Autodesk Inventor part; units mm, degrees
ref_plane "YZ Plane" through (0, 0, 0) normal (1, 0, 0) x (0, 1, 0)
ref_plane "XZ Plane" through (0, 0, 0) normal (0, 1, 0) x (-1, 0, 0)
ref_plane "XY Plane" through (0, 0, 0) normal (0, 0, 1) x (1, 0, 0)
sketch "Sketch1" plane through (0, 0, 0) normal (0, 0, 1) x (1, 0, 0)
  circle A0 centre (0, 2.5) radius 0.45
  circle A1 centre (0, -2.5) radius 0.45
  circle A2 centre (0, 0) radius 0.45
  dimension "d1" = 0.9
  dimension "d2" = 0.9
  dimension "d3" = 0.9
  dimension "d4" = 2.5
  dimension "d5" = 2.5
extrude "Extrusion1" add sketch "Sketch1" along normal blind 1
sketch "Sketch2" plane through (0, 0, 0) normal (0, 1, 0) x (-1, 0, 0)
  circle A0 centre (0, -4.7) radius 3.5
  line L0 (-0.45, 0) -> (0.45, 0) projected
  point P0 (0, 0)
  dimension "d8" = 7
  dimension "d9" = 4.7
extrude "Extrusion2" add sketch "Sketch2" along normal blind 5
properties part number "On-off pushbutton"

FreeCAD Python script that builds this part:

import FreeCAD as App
import Part
import Sketcher
from FreeCAD import Vector
Q = App.Units.Quantity

doc = App.newDocument("Part")
params = doc.addObject("Spreadsheet::Sheet", "Params")
for row, (alias, value) in enumerate([
    ("sketch1_diameter", "0.9 mm"),
    ("pad1_length", "1 mm"),
    ("sketch2_diameter", "7 mm"),
    ("pad2_length", "5 mm"),
], start=1):
    params.set(f"A{row}", alias)
    params.set(f"B{row}", "=" + value)
    params.setAlias(f"B{row}", alias)

body = doc.addObject("PartDesign::Body", "Body")
body.AllowCompound = True

sketch1 = doc.addObject("Sketcher::SketchObject", "Sketch")
body.addObject(sketch1)
sketch1.AttachmentSupport = (doc.XY_Plane, [""])
sketch1.MapMode = "FlatFace"
sketch1.addGeometry(Part.Circle(Vector(0, 2.5, 0), Vector(0, 0, 1), 0.45), False)
sketch1.addGeometry(Part.Circle(Vector(0, -2.5, 0), Vector(0, 0, 1), 0.45), False)
sketch1.addGeometry(Part.Circle(Vector(0, 0, 0), Vector(0, 0, 1), 0.45), False)
sketch1.addConstraint(Sketcher.Constraint("Coincident", 2, 3, -1, 1))
sketch1.addConstraint(Sketcher.Constraint("Equal", 0, 1))
sketch1.addConstraint(Sketcher.Constraint("Equal", 1, 2))
sketch1.addConstraint(Sketcher.Constraint("Symmetric", 0, 3, 1, 3, -1, 1))
sketch1.addConstraint(Sketcher.Constraint("PointOnObject", 0, 3, -2))
sketch1.addConstraint(Sketcher.Constraint("Diameter", 0, Q("0.9 mm")))
sketch1.addConstraint(Sketcher.Constraint("DistanceY", -1, 1, 0, 3, Q("2.5 mm")))
sketch1.setExpression("Constraints[5]", "Params.sketch1_diameter")
pad1 = doc.addObject("PartDesign::Pad", "Pad")
body.addObject(pad1)
pad1.Profile = sketch1
pad1.setExpression("Length", "Params.pad1_length")

sketch2 = doc.addObject("Sketcher::SketchObject", "Sketch001")
body.addObject(sketch2)
sketch2.AttachmentSupport = (doc.XZ_Plane, [""])
sketch2.MapMode = "FlatFace"
sketch2.addGeometry(Part.Circle(Vector(0, -4.7, 0), Vector(0, 0, 1), 3.5), False)
sketch2.addConstraint(Sketcher.Constraint("PointOnObject", 0, 3, -2))
sketch2.addConstraint(Sketcher.Constraint("Diameter", 0, Q("7 mm")))
sketch2.addConstraint(Sketcher.Constraint("DistanceY", 0, 3, -1, 1, Q("4.7 mm")))
sketch2.setExpression("Constraints[1]", "Params.sketch2_diameter")
pad2 = doc.addObject("PartDesign::Pad", "Pad001")
body.addObject(pad2)
pad2.Profile = sketch2
pad2.setExpression("Length", "Params.pad2_length")
pad2.Reversed = True

doc.recompute()
